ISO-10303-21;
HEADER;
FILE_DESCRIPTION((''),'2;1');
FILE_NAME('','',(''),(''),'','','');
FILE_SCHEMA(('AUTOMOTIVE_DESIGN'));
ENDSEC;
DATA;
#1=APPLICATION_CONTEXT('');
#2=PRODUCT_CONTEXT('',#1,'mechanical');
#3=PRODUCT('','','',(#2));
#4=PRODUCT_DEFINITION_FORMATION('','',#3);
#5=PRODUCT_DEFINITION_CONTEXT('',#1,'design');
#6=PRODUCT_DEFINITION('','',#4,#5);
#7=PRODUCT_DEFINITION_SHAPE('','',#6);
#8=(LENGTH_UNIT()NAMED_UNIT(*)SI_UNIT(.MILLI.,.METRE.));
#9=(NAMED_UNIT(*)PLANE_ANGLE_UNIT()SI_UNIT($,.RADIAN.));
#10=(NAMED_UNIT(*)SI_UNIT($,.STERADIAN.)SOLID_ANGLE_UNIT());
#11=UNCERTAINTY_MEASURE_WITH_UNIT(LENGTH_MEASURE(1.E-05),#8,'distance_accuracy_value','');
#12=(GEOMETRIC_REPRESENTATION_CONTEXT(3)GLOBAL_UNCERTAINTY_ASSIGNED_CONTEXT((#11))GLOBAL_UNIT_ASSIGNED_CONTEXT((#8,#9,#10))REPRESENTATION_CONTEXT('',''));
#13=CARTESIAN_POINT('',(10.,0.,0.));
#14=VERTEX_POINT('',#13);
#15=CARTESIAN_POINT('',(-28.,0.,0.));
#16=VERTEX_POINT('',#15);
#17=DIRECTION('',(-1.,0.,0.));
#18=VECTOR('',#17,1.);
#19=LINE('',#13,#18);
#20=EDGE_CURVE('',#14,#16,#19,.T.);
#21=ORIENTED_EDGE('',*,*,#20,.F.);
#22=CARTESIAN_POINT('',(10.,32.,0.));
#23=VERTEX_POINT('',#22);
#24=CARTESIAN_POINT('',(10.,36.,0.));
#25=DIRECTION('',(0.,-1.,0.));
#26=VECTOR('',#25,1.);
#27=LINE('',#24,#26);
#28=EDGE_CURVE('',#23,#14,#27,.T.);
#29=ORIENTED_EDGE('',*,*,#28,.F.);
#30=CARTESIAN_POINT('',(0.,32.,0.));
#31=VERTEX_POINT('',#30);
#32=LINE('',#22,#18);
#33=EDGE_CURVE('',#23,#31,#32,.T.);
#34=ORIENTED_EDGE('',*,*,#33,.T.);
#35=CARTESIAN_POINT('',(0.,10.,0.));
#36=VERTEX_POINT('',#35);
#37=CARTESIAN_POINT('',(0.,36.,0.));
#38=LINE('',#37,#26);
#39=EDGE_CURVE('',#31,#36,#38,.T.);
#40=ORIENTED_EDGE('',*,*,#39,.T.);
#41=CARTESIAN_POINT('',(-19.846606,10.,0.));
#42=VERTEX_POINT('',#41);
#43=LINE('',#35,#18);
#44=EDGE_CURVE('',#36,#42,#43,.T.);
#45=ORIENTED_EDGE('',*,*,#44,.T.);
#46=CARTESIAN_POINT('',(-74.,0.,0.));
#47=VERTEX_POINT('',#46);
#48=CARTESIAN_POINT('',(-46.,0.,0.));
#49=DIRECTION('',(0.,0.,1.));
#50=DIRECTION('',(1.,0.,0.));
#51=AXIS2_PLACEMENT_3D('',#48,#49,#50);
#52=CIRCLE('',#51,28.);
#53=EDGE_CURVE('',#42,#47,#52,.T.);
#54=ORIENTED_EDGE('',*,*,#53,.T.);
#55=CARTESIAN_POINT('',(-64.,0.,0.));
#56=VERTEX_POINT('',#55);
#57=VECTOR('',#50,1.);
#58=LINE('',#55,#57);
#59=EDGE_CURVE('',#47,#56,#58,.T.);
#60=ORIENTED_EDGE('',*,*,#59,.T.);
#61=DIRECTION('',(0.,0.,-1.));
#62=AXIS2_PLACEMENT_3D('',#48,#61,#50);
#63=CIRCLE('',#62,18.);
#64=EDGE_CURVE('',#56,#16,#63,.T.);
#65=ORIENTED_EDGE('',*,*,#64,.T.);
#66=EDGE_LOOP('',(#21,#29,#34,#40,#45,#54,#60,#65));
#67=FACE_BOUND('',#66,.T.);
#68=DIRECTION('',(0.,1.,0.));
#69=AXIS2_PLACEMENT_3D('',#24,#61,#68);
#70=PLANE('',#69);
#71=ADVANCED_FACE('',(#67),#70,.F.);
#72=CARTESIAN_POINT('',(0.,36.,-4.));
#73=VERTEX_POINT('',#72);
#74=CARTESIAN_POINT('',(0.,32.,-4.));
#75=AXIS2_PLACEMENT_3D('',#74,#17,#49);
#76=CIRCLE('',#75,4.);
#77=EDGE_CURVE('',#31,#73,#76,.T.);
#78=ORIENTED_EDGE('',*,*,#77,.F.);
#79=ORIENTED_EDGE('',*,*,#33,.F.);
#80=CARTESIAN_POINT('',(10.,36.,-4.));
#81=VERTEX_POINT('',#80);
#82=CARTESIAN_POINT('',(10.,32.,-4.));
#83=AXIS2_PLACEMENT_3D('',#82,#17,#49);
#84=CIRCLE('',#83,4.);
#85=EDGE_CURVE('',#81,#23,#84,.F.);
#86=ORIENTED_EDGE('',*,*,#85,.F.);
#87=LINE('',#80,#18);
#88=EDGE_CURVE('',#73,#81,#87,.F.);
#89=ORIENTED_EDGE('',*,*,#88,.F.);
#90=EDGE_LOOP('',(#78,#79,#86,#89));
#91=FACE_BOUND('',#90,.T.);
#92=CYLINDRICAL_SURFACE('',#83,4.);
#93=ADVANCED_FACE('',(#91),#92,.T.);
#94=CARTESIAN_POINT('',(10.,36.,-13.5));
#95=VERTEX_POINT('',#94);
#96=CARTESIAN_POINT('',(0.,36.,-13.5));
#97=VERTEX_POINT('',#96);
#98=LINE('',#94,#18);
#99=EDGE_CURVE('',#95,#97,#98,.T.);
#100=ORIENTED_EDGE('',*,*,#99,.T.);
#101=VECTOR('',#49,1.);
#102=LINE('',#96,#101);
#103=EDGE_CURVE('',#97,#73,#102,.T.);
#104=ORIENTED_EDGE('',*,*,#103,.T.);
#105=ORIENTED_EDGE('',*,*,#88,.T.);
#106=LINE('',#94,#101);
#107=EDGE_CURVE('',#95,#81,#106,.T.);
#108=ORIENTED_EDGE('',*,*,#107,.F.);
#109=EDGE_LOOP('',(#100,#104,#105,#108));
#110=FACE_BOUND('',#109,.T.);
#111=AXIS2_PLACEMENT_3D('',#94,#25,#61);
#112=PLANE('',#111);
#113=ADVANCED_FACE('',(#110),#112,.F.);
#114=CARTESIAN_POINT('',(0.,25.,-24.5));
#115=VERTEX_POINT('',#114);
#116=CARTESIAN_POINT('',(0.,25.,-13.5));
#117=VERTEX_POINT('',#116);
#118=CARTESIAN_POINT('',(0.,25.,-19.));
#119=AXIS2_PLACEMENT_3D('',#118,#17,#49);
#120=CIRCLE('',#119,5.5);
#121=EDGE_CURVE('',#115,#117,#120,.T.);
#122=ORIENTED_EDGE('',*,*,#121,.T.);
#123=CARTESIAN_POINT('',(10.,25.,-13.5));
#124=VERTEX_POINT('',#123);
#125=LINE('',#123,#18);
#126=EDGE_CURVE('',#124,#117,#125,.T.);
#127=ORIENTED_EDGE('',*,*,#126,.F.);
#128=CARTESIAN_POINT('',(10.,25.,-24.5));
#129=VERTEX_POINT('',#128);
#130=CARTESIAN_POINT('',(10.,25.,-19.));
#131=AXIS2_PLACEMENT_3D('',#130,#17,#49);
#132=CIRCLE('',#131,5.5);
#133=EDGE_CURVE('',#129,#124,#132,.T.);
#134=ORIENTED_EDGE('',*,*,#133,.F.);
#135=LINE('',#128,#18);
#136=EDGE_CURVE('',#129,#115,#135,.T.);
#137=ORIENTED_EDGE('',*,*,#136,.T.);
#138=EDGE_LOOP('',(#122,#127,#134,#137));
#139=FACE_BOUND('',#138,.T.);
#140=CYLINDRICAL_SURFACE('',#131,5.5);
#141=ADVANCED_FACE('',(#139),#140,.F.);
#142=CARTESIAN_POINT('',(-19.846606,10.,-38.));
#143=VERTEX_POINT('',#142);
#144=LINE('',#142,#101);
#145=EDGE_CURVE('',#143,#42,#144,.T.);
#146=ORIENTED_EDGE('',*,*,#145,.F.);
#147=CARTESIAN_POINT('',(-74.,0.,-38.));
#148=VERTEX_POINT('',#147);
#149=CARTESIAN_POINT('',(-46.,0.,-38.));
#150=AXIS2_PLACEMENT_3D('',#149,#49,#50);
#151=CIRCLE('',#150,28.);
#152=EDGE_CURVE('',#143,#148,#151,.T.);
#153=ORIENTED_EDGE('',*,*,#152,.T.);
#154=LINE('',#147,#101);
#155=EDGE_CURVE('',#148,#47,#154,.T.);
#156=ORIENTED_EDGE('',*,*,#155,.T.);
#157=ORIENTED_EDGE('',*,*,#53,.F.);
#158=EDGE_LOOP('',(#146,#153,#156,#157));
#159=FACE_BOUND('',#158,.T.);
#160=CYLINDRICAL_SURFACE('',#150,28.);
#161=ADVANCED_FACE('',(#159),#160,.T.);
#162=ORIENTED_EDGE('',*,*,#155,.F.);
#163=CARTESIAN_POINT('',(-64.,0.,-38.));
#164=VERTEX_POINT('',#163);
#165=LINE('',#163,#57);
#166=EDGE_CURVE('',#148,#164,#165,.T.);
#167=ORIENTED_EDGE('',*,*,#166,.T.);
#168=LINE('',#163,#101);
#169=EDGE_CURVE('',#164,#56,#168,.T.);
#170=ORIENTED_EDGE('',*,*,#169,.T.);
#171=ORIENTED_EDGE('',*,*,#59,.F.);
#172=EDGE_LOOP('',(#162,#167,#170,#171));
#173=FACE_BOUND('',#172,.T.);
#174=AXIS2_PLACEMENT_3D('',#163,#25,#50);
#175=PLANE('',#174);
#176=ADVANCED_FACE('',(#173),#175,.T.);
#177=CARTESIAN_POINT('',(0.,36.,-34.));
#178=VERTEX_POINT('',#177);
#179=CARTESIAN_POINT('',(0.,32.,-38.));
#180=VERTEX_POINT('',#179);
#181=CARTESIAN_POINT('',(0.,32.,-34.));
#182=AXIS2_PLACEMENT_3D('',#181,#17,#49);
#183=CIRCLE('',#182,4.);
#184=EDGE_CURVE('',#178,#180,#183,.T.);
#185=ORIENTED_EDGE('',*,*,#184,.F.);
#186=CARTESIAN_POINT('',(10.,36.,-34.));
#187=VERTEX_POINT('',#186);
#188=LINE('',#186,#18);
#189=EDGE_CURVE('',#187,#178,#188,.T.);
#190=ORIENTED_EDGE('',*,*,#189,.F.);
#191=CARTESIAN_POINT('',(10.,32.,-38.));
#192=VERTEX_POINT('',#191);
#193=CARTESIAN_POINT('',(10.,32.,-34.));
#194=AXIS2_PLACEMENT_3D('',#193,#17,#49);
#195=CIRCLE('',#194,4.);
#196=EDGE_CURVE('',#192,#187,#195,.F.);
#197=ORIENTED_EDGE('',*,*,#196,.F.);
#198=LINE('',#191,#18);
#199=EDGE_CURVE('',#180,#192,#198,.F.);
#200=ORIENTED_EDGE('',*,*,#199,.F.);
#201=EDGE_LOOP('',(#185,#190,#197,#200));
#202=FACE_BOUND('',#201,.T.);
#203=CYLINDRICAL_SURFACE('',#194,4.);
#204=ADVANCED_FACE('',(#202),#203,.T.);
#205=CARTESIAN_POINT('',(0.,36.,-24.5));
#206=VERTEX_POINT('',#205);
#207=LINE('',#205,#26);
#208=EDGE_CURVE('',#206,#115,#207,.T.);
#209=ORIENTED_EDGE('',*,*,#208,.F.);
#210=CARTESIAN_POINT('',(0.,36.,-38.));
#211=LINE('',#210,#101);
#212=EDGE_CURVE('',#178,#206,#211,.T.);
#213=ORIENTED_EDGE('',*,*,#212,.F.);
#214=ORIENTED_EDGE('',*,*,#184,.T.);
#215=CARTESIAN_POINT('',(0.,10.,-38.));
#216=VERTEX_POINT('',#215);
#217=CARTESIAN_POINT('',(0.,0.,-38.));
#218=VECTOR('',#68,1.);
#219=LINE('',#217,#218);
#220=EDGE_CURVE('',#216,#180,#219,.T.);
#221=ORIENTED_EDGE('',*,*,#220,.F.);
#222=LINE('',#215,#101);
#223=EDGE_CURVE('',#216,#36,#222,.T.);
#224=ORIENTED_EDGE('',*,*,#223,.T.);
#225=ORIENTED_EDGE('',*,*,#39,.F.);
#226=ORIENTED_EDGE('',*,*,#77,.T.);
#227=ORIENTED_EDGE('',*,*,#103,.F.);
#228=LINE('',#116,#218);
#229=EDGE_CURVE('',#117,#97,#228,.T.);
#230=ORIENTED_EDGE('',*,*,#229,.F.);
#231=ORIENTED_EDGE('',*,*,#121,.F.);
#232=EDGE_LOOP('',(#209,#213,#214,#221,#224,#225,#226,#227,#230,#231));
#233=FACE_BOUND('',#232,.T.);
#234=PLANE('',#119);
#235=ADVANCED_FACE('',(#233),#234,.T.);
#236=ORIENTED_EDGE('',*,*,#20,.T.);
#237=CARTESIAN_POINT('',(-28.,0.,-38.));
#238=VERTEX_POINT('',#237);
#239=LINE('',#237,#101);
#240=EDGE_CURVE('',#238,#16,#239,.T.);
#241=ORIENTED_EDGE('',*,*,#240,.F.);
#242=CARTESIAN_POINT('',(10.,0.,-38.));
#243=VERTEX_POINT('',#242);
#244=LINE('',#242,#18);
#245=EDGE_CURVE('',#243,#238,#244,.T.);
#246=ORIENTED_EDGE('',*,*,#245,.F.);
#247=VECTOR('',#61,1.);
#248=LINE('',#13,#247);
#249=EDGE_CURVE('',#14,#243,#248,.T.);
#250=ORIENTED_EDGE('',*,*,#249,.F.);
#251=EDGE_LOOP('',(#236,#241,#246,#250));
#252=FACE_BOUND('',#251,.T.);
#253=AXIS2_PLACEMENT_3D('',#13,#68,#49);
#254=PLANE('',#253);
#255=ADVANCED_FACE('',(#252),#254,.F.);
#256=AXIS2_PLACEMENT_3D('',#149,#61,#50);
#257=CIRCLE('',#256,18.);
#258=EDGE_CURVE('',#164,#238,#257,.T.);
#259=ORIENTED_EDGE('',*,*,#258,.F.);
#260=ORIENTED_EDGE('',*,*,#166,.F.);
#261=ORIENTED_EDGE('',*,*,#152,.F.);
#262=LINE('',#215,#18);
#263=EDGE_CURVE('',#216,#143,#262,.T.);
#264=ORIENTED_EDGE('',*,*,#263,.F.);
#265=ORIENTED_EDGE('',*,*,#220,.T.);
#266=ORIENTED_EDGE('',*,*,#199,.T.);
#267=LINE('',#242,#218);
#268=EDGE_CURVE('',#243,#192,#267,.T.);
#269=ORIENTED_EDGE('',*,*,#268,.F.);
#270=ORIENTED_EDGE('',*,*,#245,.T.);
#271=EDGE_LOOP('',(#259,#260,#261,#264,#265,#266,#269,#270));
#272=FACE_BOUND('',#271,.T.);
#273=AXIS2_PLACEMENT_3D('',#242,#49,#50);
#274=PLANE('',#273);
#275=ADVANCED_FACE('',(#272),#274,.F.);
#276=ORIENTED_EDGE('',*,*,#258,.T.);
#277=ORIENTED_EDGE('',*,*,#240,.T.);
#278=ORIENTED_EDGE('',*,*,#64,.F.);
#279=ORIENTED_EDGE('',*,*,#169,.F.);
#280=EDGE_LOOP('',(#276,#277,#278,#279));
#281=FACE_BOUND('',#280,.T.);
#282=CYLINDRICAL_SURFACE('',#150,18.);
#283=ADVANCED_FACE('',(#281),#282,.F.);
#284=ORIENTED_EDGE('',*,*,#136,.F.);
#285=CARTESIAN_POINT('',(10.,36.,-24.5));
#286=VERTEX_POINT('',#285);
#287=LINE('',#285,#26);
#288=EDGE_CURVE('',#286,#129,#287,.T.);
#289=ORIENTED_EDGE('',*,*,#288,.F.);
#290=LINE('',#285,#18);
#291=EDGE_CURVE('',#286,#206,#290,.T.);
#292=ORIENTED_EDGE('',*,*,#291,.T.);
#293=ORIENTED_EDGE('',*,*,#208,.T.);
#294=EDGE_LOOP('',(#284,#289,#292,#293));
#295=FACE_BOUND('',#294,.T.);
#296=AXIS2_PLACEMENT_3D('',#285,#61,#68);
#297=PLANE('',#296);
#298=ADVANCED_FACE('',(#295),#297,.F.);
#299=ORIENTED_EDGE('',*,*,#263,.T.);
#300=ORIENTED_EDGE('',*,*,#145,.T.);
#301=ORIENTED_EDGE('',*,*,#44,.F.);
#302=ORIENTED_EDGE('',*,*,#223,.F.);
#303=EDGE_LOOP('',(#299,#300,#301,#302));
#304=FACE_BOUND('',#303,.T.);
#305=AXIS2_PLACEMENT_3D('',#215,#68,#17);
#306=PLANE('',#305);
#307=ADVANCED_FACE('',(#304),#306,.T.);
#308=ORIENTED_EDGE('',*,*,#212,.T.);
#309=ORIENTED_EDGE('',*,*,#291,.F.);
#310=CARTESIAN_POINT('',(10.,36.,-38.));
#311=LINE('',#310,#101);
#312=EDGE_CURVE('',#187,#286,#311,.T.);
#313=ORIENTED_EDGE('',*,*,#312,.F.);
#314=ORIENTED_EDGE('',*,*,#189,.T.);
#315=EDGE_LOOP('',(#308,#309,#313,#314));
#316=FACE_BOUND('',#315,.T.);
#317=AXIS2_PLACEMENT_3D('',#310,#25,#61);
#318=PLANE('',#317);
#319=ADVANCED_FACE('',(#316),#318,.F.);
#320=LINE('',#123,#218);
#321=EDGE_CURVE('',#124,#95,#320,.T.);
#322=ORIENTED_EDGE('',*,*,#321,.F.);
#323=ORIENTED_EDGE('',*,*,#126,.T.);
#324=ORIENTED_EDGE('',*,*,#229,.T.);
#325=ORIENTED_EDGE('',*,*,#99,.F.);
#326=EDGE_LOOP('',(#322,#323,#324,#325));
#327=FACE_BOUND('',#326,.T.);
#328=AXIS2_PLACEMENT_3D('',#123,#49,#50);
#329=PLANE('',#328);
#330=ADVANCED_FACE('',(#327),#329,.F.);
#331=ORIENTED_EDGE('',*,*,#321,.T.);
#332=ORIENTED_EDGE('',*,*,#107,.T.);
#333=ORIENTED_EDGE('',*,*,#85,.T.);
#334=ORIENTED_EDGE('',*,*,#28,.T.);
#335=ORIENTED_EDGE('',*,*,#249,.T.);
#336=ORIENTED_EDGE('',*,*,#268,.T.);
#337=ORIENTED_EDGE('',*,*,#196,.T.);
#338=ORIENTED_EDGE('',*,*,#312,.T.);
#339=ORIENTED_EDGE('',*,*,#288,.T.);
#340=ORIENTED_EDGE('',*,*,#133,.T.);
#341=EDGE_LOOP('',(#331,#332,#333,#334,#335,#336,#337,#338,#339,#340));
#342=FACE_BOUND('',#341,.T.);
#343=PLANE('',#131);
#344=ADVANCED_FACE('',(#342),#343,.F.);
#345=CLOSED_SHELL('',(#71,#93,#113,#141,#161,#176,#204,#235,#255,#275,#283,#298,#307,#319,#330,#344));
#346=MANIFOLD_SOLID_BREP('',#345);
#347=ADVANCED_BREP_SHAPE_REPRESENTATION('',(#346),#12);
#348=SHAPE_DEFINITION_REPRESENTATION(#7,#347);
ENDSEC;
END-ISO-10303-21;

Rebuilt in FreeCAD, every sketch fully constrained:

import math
import FreeCAD as App
import Part
import Sketcher

V = App.Vector


def edges_at(feature, points):
    """Names of the edges that pass closest to the given points."""
    edges = feature.Shape.Edges
    near = lambda p: min(range(len(edges)), key=lambda i: edges[i].distToShape(Part.Vertex(*p))[0])
    return sorted({f"Edge{near(p) + 1}" for p in points})

doc = App.newDocument("Part")
body = doc.addObject("PartDesign::Body", "Body")

sketch1 = body.newObject("Sketcher::SketchObject", "Sketch")
sketch1.AttachmentSupport = (doc.getObject("YZ_Plane"), [""])
sketch1.MapMode = "FlatFace"
sketch1.addGeometry(Part.LineSegment(V(0, 0, 0), V(0, -38, 0)), False)
sketch1.addGeometry(Part.LineSegment(V(0, -38, 0), V(36, -38, 0)), False)
sketch1.addGeometry(Part.LineSegment(V(36, -38, 0), V(36, -24, 0)), False)
sketch1.addGeometry(Part.LineSegment(V(36, -24, 0), V(25, -24, 0)), False)
sketch1.addGeometry(Part.ArcOfCircle(Part.Circle(V(25, -19, 0), V(0, 0, 1), 6), math.radians(90), math.radians(270)), False)
sketch1.addGeometry(Part.LineSegment(V(25, -14, 0), V(36, -14, 0)), False)
sketch1.addGeometry(Part.LineSegment(V(36, -14, 0), V(36, 0, 0)), False)
sketch1.addGeometry(Part.LineSegment(V(36, 0, 0), V(0, 0, 0)), False)
sketch1.addConstraint(Sketcher.Constraint("Coincident", 0, 2, 1, 1))
sketch1.addConstraint(Sketcher.Constraint("Coincident", 1, 2, 2, 1))
sketch1.addConstraint(Sketcher.Constraint("Coincident", 2, 2, 3, 1))
sketch1.addConstraint(Sketcher.Constraint("Tangent", 3, 2, 4, 2))
sketch1.addConstraint(Sketcher.Constraint("Tangent", 4, 1, 5, 1))
sketch1.addConstraint(Sketcher.Constraint("Coincident", 5, 2, 6, 1))
sketch1.addConstraint(Sketcher.Constraint("Coincident", 6, 2, 7, 1))
sketch1.addConstraint(Sketcher.Constraint("Coincident", 7, 2, 0, 1))
sketch1.addConstraint(Sketcher.Constraint("Vertical", 0))
sketch1.addConstraint(Sketcher.Constraint("Horizontal", 1))
sketch1.addConstraint(Sketcher.Constraint("Vertical", 2))
sketch1.addConstraint(Sketcher.Constraint("Horizontal", 3))
sketch1.addConstraint(Sketcher.Constraint("Horizontal", 5))
sketch1.addConstraint(Sketcher.Constraint("Vertical", 6))
sketch1.addConstraint(Sketcher.Constraint("Horizontal", 7))
sketch1.addConstraint(Sketcher.Constraint("Coincident", 7, 2, -1, 1))
sketch1.addConstraint(Sketcher.Constraint("Vertical", 2, 2, 5, 2))
sketch1.addConstraint(Sketcher.Constraint("Equal", 2, 6))
sketch1.addConstraint(Sketcher.Constraint("Radius", 4, 5.5))
sketch1.addConstraint(Sketcher.Constraint("DistanceX", 1, 1, 1, 2, 36.0))
sketch1.addConstraint(Sketcher.Constraint("DistanceX", 3, 2, 3, 1, 11.0))
sketch1.addConstraint(Sketcher.Constraint("DistanceY", 0, 2, 0, 1, 38.0))
pad1 = body.newObject("PartDesign::Pad", "Pad")
pad1.Profile = sketch1
pad1.Length = 10
doc.recompute()

fillet = body.newObject("PartDesign::Fillet", "Fillet")
fillet.Base = (pad1, edges_at(pad1, [(5, 36, 0), (5, 36, -38)]))
fillet.Radius = 4

sketch2 = body.newObject("Sketcher::SketchObject", "Sketch001")
sketch2.AttachmentSupport = (doc.getObject("XY_Plane"), [""])
sketch2.MapMode = "FlatFace"
sketch2.addGeometry(Part.LineSegment(V(-74, 0, 0), V(-64, 0, 0)), False)
sketch2.addGeometry(Part.ArcOfCircle(Part.Circle(V(-46, 0, 0), V(0, 0, 1), 18), math.radians(0), math.radians(180)), False)
sketch2.addGeometry(Part.LineSegment(V(-28, 0, 0), V(0, 0, 0)), False)
sketch2.addGeometry(Part.LineSegment(V(0, 0, 0), V(0, 10, 0)), False)
sketch2.addGeometry(Part.LineSegment(V(0, 10, 0), V(-20, 10, 0)), False)
sketch2.addGeometry(Part.ArcOfCircle(Part.Circle(V(-46, 0, 0), V(0, 0, 1), 28), math.radians(21), math.radians(180)), False)
sketch2.addConstraint(Sketcher.Constraint("Coincident", 0, 2, 1, 2))
sketch2.addConstraint(Sketcher.Constraint("Coincident", 1, 1, 2, 1))
sketch2.addConstraint(Sketcher.Constraint("Coincident", 2, 2, 3, 1))
sketch2.addConstraint(Sketcher.Constraint("Coincident", 3, 2, 4, 1))
sketch2.addConstraint(Sketcher.Constraint("Coincident", 4, 2, 5, 1))
sketch2.addConstraint(Sketcher.Constraint("Coincident", 5, 2, 0, 1))
sketch2.addConstraint(Sketcher.Constraint("Horizontal", 0))
sketch2.addConstraint(Sketcher.Constraint("Horizontal", 2))
sketch2.addConstraint(Sketcher.Constraint("Vertical", 3))
sketch2.addConstraint(Sketcher.Constraint("Horizontal", 4))
sketch2.addConstraint(Sketcher.Constraint("Coincident", 2, 2, -1, 1))
sketch2.addConstraint(Sketcher.Constraint("Coincident", 5, 3, 1, 3))
sketch2.addConstraint(Sketcher.Constraint("PointOnObject", 1, 3, -1))
sketch2.addConstraint(Sketcher.Constraint("PointOnObject", 0, 2, -1))
sketch2.addConstraint(Sketcher.Constraint("Equal", 0, 3))
sketch2.addConstraint(Sketcher.Constraint("Radius", 1, 18.0))
sketch2.addConstraint(Sketcher.Constraint("Radius", 5, 28.0))
sketch2.addConstraint(Sketcher.Constraint("DistanceX", 2, 1, 2, 2, 28.0))
pad2 = body.newObject("PartDesign::Pad", "Pad001")
pad2.Profile = sketch2
pad2.Length = 38
pad2.Reversed = True

doc.recompute()
